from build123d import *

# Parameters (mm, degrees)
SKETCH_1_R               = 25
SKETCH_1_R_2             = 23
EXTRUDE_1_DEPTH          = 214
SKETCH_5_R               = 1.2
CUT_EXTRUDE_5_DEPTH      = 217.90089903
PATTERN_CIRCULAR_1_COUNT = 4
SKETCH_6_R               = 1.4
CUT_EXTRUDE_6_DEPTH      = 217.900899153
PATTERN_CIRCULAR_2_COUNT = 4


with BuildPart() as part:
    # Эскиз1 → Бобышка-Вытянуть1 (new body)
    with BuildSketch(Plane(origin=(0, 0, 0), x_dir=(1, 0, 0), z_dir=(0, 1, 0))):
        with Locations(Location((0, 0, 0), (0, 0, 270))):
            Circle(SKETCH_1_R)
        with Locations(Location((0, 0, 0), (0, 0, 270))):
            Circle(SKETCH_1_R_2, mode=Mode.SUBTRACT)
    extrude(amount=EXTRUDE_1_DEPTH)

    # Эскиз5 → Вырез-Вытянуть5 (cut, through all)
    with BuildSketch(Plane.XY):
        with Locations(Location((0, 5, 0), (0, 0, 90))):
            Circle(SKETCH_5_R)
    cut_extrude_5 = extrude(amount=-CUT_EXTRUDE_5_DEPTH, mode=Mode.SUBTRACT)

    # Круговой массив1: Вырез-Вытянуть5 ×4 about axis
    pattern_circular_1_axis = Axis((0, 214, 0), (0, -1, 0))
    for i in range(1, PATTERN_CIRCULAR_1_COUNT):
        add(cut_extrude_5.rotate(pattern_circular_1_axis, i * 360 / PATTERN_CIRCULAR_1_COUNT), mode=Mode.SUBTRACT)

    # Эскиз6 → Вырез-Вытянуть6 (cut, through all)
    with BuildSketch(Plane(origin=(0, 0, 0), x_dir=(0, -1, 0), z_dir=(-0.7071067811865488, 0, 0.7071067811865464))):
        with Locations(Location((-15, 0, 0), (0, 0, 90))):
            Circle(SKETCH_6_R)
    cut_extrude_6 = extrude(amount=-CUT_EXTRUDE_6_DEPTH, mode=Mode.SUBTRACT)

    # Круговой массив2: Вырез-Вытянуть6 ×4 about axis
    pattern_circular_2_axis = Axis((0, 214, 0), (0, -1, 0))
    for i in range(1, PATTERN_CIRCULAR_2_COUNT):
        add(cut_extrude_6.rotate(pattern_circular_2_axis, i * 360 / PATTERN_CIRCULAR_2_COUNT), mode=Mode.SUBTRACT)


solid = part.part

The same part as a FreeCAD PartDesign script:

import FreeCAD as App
import Part
import Sketcher
Q = App.Units.Quantity

doc = App.newDocument("Part")
params = doc.addObject("Spreadsheet::Sheet", "Params")
for row, (alias, value) in enumerate([
    ("sketch1_diameter", "50 mm"),
    ("sketch1_diameter2", "46 mm"),
    ("pad1_length", "214 mm"),
    ("sketch2_diameter", "2.4 mm"),
    ("sketch3_diameter", "2.8 mm"),
], start=1):
    params.set(f"A{row}", alias)
    params.set(f"B{row}", "=" + value)
    params.setAlias(f"B{row}", alias)

body = doc.addObject("PartDesign::Body", "Body")

sketch1 = doc.addObject("Sketcher::SketchObject", "Sketch")
body.addObject(sketch1)
sketch1.AttachmentSupport = (doc.XZ_Plane, [""])
sketch1.MapMode = "FlatFace"
sketch1.addGeometry([
    Part.Circle(App.Vector(0, 0, 0), App.Vector(0, 0, 1), 25),
    Part.Circle(App.Vector(0, 0, 0), App.Vector(0, 0, 1), 23),
], False)
sketch1.addConstraint([
    Sketcher.Constraint("Coincident", 0, 3, -1, 1),
    Sketcher.Constraint("Coincident", 1, 3, -1, 1),
    Sketcher.Constraint("Diameter", 0, Q("50 mm")),
    Sketcher.Constraint("Diameter", 1, Q("46 mm")),
])
sketch1.setExpression("Constraints[2]", "Params.sketch1_diameter")
sketch1.setExpression("Constraints[3]", "Params.sketch1_diameter2")
pad1 = doc.addObject("PartDesign::Pad", "Pad")
body.addObject(pad1)
pad1.Profile = sketch1
pad1.setExpression("Length", "Params.pad1_length")
pad1.Reversed = True

sketch2 = doc.addObject("Sketcher::SketchObject", "Sketch001")
body.addObject(sketch2)
sketch2.AttachmentSupport = (doc.XY_Plane, [""])
sketch2.MapMode = "FlatFace"
sketch2.addGeometry(Part.Circle(App.Vector(0, 5, 0), App.Vector(0, 0, 1), 1.2), False)
sketch2.addConstraint([
    Sketcher.Constraint("PointOnObject", 0, 3, -2),
    Sketcher.Constraint("Diameter", 0, Q("2.4 mm")),
    Sketcher.Constraint("DistanceY", -1, 1, 0, 3, Q("5 mm")),
])
sketch2.setExpression("Constraints[1]", "Params.sketch2_diameter")
pocket1 = doc.addObject("PartDesign::Pocket", "Pocket")
body.addObject(pocket1)
pocket1.Profile = sketch2
pocket1.Type = "ThroughAll"
doc.recompute()

polarpattern = doc.addObject("PartDesign::PolarPattern", "PolarPattern")
body.addObject(polarpattern)
polarpattern.Originals = [pocket1]
polarpattern.Axis = (doc.Y_Axis, [""])
polarpattern.Angle = 360
polarpattern.Occurrences = 4
body.Tip = polarpattern

sketch3 = doc.addObject("Sketcher::SketchObject", "Sketch002")
body.addObject(sketch3)
sketch3.Placement = App.Placement(App.Vector(0, 0, 0), App.Rotation(App.Vector(0, -1, 0), App.Vector(0.707106781, 0, 0.707106781), App.Vector(-0.707106781, 0, 0.707106781), "ZXY"))
sketch3.addGeometry(Part.Circle(App.Vector(-15, 0, 0), App.Vector(0, 0, 1), 1.4), False)
sketch3.addConstraint([
    Sketcher.Constraint("PointOnObject", 0, 3, -1),
    Sketcher.Constraint("Diameter", 0, Q("2.8 mm")),
    Sketcher.Constraint("DistanceX", 0, 3, -1, 1, Q("15 mm")),
])
sketch3.setExpression("Constraints[1]", "Params.sketch3_diameter")
pocket2 = doc.addObject("PartDesign::Pocket", "Pocket001")
body.addObject(pocket2)
pocket2.Profile = sketch3
pocket2.Type = "ThroughAll"
doc.recompute()

polarpattern2 = doc.addObject("PartDesign::PolarPattern", "PolarPattern001")
body.addObject(polarpattern2)
polarpattern2.Originals = [pocket2]
polarpattern2.Axis = (doc.Y_Axis, [""])
polarpattern2.Angle = 360
polarpattern2.Occurrences = 4
body.Tip = polarpattern2

doc.recompute()
